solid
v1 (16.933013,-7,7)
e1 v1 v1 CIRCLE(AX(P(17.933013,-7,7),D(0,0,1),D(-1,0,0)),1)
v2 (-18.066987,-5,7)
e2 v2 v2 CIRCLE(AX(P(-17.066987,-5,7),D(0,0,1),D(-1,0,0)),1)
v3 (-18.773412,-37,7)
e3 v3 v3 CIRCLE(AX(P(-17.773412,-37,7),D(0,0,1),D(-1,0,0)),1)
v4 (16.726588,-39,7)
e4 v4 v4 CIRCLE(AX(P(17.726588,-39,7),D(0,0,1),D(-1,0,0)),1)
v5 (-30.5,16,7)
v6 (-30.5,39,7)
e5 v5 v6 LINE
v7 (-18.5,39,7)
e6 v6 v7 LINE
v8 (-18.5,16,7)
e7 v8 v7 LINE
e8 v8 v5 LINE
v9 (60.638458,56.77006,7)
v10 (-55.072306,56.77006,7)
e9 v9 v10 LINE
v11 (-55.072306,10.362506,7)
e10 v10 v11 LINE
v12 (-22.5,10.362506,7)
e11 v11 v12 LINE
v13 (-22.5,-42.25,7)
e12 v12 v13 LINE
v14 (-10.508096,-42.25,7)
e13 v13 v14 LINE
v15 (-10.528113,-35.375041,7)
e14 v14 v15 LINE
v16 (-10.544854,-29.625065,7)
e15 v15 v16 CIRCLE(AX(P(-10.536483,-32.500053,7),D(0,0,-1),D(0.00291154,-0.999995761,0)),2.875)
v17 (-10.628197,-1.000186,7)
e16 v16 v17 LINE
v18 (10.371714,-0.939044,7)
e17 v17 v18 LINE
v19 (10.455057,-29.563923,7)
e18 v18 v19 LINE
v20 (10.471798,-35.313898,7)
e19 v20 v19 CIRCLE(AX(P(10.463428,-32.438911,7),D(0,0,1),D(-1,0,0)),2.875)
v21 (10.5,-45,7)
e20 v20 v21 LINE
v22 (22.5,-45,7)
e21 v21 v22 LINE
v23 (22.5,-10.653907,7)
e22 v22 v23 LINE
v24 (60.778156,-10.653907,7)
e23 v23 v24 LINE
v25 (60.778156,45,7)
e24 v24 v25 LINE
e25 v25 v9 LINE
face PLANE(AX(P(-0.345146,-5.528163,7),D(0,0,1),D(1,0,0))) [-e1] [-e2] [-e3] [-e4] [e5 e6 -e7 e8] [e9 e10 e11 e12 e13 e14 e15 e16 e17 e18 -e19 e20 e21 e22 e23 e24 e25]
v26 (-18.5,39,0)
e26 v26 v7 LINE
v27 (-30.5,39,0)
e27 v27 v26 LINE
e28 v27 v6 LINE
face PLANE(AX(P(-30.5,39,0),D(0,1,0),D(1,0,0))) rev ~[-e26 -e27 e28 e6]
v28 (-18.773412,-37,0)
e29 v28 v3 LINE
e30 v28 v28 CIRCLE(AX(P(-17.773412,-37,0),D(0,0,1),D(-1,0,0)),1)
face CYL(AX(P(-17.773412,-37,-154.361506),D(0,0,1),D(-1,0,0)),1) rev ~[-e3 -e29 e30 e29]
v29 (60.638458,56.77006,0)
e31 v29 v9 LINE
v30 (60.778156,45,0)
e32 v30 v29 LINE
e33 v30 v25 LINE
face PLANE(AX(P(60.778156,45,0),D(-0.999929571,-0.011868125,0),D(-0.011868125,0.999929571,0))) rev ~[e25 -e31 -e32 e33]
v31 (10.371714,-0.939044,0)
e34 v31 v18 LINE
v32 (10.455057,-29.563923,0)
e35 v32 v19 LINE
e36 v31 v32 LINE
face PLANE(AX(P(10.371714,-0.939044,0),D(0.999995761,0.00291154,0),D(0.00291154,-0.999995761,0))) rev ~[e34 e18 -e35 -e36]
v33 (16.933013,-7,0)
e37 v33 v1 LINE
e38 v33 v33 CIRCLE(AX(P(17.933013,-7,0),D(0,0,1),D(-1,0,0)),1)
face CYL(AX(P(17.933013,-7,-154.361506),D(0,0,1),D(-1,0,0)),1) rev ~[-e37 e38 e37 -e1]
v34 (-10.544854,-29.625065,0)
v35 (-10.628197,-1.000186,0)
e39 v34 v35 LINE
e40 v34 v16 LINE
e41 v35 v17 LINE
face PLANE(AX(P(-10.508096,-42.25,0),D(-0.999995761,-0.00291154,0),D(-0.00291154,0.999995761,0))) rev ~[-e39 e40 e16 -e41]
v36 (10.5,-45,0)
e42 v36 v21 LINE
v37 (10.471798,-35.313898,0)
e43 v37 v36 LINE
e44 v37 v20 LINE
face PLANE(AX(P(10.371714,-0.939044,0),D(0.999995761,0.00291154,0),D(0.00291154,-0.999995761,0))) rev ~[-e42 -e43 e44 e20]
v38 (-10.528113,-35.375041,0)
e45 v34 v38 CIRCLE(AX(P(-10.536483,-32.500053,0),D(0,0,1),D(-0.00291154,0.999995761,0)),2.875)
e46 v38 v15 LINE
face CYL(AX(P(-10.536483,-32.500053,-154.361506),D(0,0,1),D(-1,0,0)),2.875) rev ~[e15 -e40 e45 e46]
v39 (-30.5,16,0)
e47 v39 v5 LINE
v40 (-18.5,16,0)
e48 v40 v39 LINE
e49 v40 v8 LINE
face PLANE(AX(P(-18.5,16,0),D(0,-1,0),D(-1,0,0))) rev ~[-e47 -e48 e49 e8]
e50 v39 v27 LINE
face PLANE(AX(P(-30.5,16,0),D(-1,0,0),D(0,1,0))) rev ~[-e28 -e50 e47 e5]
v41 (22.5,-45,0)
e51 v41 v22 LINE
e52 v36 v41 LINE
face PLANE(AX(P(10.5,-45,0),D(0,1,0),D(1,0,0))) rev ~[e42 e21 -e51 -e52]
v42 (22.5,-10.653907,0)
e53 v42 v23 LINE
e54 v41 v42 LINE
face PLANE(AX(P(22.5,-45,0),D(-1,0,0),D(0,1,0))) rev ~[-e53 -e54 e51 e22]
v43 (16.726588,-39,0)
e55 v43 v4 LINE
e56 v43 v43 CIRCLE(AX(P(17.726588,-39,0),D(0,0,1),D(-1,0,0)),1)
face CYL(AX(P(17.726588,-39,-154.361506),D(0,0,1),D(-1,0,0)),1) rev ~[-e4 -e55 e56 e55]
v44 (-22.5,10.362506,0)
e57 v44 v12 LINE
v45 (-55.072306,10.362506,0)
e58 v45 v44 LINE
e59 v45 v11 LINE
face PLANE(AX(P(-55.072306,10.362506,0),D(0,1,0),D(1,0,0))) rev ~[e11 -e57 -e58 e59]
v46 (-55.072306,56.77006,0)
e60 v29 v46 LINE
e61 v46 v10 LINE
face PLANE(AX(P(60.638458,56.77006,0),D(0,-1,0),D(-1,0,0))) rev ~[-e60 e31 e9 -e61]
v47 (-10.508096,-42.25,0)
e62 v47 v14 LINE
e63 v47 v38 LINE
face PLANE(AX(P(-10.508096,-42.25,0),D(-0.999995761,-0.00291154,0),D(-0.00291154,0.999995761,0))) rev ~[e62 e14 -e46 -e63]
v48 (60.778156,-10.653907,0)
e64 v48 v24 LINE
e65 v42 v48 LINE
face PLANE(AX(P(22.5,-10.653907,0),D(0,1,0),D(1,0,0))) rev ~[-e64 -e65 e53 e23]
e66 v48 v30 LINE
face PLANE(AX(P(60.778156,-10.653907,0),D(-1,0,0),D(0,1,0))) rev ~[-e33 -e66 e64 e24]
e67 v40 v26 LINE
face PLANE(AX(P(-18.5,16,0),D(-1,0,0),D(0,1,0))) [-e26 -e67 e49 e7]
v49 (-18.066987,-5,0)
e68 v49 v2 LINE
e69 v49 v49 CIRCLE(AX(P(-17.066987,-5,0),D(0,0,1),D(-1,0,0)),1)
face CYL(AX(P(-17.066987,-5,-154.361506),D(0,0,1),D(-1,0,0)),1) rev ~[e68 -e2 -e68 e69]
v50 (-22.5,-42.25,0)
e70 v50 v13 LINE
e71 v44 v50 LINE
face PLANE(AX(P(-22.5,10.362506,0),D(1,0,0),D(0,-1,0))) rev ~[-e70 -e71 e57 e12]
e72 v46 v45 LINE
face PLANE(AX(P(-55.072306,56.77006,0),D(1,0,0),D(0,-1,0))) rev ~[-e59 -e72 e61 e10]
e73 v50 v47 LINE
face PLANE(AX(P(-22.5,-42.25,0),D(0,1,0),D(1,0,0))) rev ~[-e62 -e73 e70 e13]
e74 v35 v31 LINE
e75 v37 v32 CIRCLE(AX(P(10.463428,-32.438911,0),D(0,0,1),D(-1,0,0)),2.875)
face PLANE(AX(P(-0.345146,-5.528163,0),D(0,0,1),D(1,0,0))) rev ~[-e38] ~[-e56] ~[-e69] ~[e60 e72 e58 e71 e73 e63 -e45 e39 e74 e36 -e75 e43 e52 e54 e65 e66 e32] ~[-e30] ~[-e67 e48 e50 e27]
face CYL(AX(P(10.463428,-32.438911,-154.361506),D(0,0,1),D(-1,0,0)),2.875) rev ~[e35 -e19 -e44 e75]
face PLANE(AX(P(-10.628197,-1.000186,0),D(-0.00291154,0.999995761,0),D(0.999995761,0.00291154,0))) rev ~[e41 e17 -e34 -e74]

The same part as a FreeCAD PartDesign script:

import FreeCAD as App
import Part
import Sketcher

V = App.Vector
Q = App.Units.Quantity

doc = App.newDocument("Part")
body = doc.addObject("PartDesign::Body", "Body")

# Sketch on XY plane
sketch1 = doc.addObject("Sketcher::SketchObject", "Sketch")
body.addObject(sketch1)
sketch1.AttachmentSupport = (doc.XY_Plane, [""])
sketch1.MapMode = "FlatFace"
sketch1.addGeometry([
    Part.LineSegment(V(10.5, -45, 0), V(22.5, -45, 0)),  # 0
    Part.LineSegment(V(22.5, -45, 0), V(22.5, -10.653907, 0)),  # 1
    Part.LineSegment(V(22.5, -10.653907, 0), V(60.778156, -10.653907, 0)),  # 2
    Part.LineSegment(V(60.778156, -10.653907, 0), V(60.778156, 45, 0)),  # 3
    Part.LineSegment(V(60.778156, 45, 0), V(60.638458, 56.77006, 0)),  # 4
    Part.LineSegment(V(60.638458, 56.77006, 0), V(-55.072306, 56.77006, 0)),  # 5
    Part.LineSegment(V(-55.072306, 56.77006, 0), V(-55.072306, 10.362506, 0)),  # 6
    Part.LineSegment(V(-55.072306, 10.362506, 0), V(-22.5, 10.362506, 0)),  # 7
    Part.LineSegment(V(-22.5, 10.362506, 0), V(-22.5, -42.25, 0)),  # 8
    Part.LineSegment(V(-22.5, -42.25, 0), V(-10.508096, -42.25, 0)),  # 9
    Part.LineSegment(V(-10.508096, -42.25, 0), V(-10.628197, -1.000186, 0)),  # 10
    Part.LineSegment(V(-10.628197, -1.000186, 0), V(10.371714, -0.939044, 0)),  # 11
    Part.LineSegment(V(10.371714, -0.939044, 0), V(10.5, -45, 0)),  # 12
    Part.LineSegment(V(-30.5, 16, 0), V(-30.5, 39, 0)),  # 13
    Part.LineSegment(V(-30.5, 39, 0), V(-18.5, 39, 0)),  # 14
    Part.LineSegment(V(-18.5, 39, 0), V(-18.5, 16, 0)),  # 15
    Part.LineSegment(V(-18.5, 16, 0), V(-30.5, 16, 0)),  # 16
], False)
sketch1.addConstraint([
    Sketcher.Constraint("Coincident", 0, 2, 1, 1),
    Sketcher.Constraint("Coincident", 1, 2, 2, 1),
    Sketcher.Constraint("Coincident", 2, 2, 3, 1),
    Sketcher.Constraint("Coincident", 3, 2, 4, 1),
    Sketcher.Constraint("Coincident", 4, 2, 5, 1),
    Sketcher.Constraint("Coincident", 5, 2, 6, 1),
    Sketcher.Constraint("Coincident", 6, 2, 7, 1),
    Sketcher.Constraint("Coincident", 7, 2, 8, 1),
    Sketcher.Constraint("Coincident", 8, 2, 9, 1),
    Sketcher.Constraint("Coincident", 9, 2, 10, 1),
    Sketcher.Constraint("Coincident", 10, 2, 11, 1),
    Sketcher.Constraint("Coincident", 11, 2, 12, 1),
    Sketcher.Constraint("Coincident", 12, 2, 0, 1),
    Sketcher.Constraint("Coincident", 13, 2, 14, 1),
    Sketcher.Constraint("Coincident", 14, 2, 15, 1),
    Sketcher.Constraint("Coincident", 15, 2, 16, 1),
    Sketcher.Constraint("Coincident", 16, 2, 13, 1),
    Sketcher.Constraint("Horizontal", 0),
    Sketcher.Constraint("Vertical", 1),
    Sketcher.Constraint("Horizontal", 2),
    Sketcher.Constraint("Vertical", 3),
    Sketcher.Constraint("Horizontal", 5),
    Sketcher.Constraint("Vertical", 6),
    Sketcher.Constraint("Horizontal", 7),
    Sketcher.Constraint("Vertical", 8),
    Sketcher.Constraint("Horizontal", 9),
    Sketcher.Constraint("Vertical", 13),
    Sketcher.Constraint("Horizontal", 14),
    Sketcher.Constraint("Vertical", 15),
    Sketcher.Constraint("Horizontal", 16),
    Sketcher.Constraint("DistanceX", 0, 1, 0, 2, Q("12 mm")),
    Sketcher.Constraint("DistanceX", 14, 1, 14, 2, Q("12 mm")),
    Sketcher.Constraint("DistanceY", 13, 1, 13, 2, Q("23 mm")),
    Sketcher.Constraint("Distance", 11, Q("21 mm")),
    Sketcher.Constraint("DistanceY", 0, 2, -1, 1, Q("45 mm")),
    Sketcher.Constraint("DistanceY", -1, 1, 3, 2, Q("45 mm")),
    Sketcher.Constraint("DistanceY", -1, 1, 13, 2, Q("39 mm")),
    Sketcher.Constraint("DistanceX", 7, 2, 1, 2, Q("45 mm")),
    Sketcher.Constraint("DistanceX", 13, 2, 7, 2, Q("8 mm")),
    Sketcher.Constraint("DistanceX", -1, 1, 0, 2, Q("22.5 mm")),
    Sketcher.Constraint("DistanceY", 8, 2, -1, 1, Q("42.25 mm")),
    Sketcher.Constraint("DistanceX", 4, 2, 3, 2, Q("0.139698 mm")),
    Sketcher.Constraint("DistanceX", 10, 2, 9, 2, Q("0.120101 mm")),
    Sketcher.Constraint("Distance", 4, Q("11.770889 mm")),
    Sketcher.Constraint("Distance", 10, Q("41.249988 mm")),
    Sketcher.Constraint("DistanceX", 2, 1, 2, 2, Q("38.278156 mm")),
    Sketcher.Constraint("DistanceX", 5, 2, 5, 1, Q("115.710764 mm")),
    Sketcher.Constraint("DistanceX", 9, 1, 9, 2, Q("11.991904 mm")),
    Sketcher.Constraint("DistanceY", 1, 1, 1, 2, Q("34.346093 mm")),
    Sketcher.Constraint("DistanceY", 6, 2, 6, 1, Q("46.407554 mm")),
    Sketcher.Constraint("DistanceY", 11, 2, 7, 2, Q("11.30155 mm")),
])
pad1 = doc.addObject("PartDesign::Pad", "Pad")
body.addObject(pad1)
pad1.Profile = sketch1
pad1.Length = 7

# Sketch on XY plane
sketch2 = doc.addObject("Sketcher::SketchObject", "Sketch001")
body.addObject(sketch2)
sketch2.AttachmentSupport = (doc.XY_Plane, [""])
sketch2.MapMode = "FlatFace"
sketch2.addGeometry([
    Part.Circle(V(-17.066987, -5, 0), V(0, 0, 1), 1),
    Part.Circle(V(-17.773412, -37, 0), V(0, 0, 1), 1),
    Part.Circle(V(17.726588, -39, 0), V(0, 0, 1), 1),
    Part.Circle(V(17.933013, -7, 0), V(0, 0, 1), 1),
], False)
sketch2.addConstraint([
    Sketcher.Constraint("Equal", 0, 1),
    Sketcher.Constraint("Equal", 1, 2),
    Sketcher.Constraint("Equal", 2, 3),
    Sketcher.Constraint("Diameter", 0, Q("2 mm")),
    Sketcher.Constraint("DistanceY", 0, 3, -1, 1, Q("5 mm")),
    Sketcher.Constraint("DistanceY", 1, 3, -1, 1, Q("37 mm")),
    Sketcher.Constraint("DistanceY", 2, 3, -1, 1, Q("39 mm")),
    Sketcher.Constraint("DistanceY", 3, 3, -1, 1, Q("7 mm")),
    Sketcher.Constraint("DistanceX", 0, 3, 3, 3, Q("35 mm")),
    Sketcher.Constraint("DistanceX", 1, 3, 2, 3, Q("35.5 mm")),
    Sketcher.Constraint("DistanceX", 0, 3, -1, 1, Q("17.066987 mm")),
    Sketcher.Constraint("DistanceX", 1, 3, -1, 1, Q("17.773412 mm")),
])
doc.recompute()
hole = doc.addObject("PartDesign::Hole", "Hole")
body.addObject(hole)
hole.Profile = sketch2
hole.ThreadType = "None"
hole.Diameter = 2
hole.DepthType = "ThroughAll"
hole.Reversed = True

# Sketch on XY plane
sketch3 = doc.addObject("Sketcher::SketchObject", "Sketch002")
body.addObject(sketch3)
sketch3.AttachmentSupport = (doc.XY_Plane, [""])
sketch3.MapMode = "FlatFace"
sketch3.addGeometry([
    Part.Circle(V(-10.536483, -32.500053, 0), V(0, 0, 1), 2.875),
    Part.Circle(V(10.463428, -32.438911, 0), V(0, 0, 1), 2.875),
], False)
sketch3.addConstraint([
    Sketcher.Constraint("Equal", 0, 1),
    Sketcher.Constraint("Diameter", 0, Q("5.75 mm")),
    Sketcher.Constraint("DistanceY", 1, 3, -1, 1, Q("32.438911 mm")),
    Sketcher.Constraint("DistanceX", 0, 3, 1, 3, Q("20.999911 mm")),
    Sketcher.Constraint("DistanceX", 0, 3, -1, 1, Q("10.536483 mm")),
    Sketcher.Constraint("DistanceY", 0, 3, -1, 1, Q("32.500053 mm")),
])
doc.recompute()
hole2 = doc.addObject("PartDesign::Hole", "Hole001")
body.addObject(hole2)
hole2.Profile = sketch3
hole2.ThreadType = "None"
hole2.Diameter = 5.75
hole2.DepthType = "ThroughAll"
hole2.Reversed = True

doc.recompute()
